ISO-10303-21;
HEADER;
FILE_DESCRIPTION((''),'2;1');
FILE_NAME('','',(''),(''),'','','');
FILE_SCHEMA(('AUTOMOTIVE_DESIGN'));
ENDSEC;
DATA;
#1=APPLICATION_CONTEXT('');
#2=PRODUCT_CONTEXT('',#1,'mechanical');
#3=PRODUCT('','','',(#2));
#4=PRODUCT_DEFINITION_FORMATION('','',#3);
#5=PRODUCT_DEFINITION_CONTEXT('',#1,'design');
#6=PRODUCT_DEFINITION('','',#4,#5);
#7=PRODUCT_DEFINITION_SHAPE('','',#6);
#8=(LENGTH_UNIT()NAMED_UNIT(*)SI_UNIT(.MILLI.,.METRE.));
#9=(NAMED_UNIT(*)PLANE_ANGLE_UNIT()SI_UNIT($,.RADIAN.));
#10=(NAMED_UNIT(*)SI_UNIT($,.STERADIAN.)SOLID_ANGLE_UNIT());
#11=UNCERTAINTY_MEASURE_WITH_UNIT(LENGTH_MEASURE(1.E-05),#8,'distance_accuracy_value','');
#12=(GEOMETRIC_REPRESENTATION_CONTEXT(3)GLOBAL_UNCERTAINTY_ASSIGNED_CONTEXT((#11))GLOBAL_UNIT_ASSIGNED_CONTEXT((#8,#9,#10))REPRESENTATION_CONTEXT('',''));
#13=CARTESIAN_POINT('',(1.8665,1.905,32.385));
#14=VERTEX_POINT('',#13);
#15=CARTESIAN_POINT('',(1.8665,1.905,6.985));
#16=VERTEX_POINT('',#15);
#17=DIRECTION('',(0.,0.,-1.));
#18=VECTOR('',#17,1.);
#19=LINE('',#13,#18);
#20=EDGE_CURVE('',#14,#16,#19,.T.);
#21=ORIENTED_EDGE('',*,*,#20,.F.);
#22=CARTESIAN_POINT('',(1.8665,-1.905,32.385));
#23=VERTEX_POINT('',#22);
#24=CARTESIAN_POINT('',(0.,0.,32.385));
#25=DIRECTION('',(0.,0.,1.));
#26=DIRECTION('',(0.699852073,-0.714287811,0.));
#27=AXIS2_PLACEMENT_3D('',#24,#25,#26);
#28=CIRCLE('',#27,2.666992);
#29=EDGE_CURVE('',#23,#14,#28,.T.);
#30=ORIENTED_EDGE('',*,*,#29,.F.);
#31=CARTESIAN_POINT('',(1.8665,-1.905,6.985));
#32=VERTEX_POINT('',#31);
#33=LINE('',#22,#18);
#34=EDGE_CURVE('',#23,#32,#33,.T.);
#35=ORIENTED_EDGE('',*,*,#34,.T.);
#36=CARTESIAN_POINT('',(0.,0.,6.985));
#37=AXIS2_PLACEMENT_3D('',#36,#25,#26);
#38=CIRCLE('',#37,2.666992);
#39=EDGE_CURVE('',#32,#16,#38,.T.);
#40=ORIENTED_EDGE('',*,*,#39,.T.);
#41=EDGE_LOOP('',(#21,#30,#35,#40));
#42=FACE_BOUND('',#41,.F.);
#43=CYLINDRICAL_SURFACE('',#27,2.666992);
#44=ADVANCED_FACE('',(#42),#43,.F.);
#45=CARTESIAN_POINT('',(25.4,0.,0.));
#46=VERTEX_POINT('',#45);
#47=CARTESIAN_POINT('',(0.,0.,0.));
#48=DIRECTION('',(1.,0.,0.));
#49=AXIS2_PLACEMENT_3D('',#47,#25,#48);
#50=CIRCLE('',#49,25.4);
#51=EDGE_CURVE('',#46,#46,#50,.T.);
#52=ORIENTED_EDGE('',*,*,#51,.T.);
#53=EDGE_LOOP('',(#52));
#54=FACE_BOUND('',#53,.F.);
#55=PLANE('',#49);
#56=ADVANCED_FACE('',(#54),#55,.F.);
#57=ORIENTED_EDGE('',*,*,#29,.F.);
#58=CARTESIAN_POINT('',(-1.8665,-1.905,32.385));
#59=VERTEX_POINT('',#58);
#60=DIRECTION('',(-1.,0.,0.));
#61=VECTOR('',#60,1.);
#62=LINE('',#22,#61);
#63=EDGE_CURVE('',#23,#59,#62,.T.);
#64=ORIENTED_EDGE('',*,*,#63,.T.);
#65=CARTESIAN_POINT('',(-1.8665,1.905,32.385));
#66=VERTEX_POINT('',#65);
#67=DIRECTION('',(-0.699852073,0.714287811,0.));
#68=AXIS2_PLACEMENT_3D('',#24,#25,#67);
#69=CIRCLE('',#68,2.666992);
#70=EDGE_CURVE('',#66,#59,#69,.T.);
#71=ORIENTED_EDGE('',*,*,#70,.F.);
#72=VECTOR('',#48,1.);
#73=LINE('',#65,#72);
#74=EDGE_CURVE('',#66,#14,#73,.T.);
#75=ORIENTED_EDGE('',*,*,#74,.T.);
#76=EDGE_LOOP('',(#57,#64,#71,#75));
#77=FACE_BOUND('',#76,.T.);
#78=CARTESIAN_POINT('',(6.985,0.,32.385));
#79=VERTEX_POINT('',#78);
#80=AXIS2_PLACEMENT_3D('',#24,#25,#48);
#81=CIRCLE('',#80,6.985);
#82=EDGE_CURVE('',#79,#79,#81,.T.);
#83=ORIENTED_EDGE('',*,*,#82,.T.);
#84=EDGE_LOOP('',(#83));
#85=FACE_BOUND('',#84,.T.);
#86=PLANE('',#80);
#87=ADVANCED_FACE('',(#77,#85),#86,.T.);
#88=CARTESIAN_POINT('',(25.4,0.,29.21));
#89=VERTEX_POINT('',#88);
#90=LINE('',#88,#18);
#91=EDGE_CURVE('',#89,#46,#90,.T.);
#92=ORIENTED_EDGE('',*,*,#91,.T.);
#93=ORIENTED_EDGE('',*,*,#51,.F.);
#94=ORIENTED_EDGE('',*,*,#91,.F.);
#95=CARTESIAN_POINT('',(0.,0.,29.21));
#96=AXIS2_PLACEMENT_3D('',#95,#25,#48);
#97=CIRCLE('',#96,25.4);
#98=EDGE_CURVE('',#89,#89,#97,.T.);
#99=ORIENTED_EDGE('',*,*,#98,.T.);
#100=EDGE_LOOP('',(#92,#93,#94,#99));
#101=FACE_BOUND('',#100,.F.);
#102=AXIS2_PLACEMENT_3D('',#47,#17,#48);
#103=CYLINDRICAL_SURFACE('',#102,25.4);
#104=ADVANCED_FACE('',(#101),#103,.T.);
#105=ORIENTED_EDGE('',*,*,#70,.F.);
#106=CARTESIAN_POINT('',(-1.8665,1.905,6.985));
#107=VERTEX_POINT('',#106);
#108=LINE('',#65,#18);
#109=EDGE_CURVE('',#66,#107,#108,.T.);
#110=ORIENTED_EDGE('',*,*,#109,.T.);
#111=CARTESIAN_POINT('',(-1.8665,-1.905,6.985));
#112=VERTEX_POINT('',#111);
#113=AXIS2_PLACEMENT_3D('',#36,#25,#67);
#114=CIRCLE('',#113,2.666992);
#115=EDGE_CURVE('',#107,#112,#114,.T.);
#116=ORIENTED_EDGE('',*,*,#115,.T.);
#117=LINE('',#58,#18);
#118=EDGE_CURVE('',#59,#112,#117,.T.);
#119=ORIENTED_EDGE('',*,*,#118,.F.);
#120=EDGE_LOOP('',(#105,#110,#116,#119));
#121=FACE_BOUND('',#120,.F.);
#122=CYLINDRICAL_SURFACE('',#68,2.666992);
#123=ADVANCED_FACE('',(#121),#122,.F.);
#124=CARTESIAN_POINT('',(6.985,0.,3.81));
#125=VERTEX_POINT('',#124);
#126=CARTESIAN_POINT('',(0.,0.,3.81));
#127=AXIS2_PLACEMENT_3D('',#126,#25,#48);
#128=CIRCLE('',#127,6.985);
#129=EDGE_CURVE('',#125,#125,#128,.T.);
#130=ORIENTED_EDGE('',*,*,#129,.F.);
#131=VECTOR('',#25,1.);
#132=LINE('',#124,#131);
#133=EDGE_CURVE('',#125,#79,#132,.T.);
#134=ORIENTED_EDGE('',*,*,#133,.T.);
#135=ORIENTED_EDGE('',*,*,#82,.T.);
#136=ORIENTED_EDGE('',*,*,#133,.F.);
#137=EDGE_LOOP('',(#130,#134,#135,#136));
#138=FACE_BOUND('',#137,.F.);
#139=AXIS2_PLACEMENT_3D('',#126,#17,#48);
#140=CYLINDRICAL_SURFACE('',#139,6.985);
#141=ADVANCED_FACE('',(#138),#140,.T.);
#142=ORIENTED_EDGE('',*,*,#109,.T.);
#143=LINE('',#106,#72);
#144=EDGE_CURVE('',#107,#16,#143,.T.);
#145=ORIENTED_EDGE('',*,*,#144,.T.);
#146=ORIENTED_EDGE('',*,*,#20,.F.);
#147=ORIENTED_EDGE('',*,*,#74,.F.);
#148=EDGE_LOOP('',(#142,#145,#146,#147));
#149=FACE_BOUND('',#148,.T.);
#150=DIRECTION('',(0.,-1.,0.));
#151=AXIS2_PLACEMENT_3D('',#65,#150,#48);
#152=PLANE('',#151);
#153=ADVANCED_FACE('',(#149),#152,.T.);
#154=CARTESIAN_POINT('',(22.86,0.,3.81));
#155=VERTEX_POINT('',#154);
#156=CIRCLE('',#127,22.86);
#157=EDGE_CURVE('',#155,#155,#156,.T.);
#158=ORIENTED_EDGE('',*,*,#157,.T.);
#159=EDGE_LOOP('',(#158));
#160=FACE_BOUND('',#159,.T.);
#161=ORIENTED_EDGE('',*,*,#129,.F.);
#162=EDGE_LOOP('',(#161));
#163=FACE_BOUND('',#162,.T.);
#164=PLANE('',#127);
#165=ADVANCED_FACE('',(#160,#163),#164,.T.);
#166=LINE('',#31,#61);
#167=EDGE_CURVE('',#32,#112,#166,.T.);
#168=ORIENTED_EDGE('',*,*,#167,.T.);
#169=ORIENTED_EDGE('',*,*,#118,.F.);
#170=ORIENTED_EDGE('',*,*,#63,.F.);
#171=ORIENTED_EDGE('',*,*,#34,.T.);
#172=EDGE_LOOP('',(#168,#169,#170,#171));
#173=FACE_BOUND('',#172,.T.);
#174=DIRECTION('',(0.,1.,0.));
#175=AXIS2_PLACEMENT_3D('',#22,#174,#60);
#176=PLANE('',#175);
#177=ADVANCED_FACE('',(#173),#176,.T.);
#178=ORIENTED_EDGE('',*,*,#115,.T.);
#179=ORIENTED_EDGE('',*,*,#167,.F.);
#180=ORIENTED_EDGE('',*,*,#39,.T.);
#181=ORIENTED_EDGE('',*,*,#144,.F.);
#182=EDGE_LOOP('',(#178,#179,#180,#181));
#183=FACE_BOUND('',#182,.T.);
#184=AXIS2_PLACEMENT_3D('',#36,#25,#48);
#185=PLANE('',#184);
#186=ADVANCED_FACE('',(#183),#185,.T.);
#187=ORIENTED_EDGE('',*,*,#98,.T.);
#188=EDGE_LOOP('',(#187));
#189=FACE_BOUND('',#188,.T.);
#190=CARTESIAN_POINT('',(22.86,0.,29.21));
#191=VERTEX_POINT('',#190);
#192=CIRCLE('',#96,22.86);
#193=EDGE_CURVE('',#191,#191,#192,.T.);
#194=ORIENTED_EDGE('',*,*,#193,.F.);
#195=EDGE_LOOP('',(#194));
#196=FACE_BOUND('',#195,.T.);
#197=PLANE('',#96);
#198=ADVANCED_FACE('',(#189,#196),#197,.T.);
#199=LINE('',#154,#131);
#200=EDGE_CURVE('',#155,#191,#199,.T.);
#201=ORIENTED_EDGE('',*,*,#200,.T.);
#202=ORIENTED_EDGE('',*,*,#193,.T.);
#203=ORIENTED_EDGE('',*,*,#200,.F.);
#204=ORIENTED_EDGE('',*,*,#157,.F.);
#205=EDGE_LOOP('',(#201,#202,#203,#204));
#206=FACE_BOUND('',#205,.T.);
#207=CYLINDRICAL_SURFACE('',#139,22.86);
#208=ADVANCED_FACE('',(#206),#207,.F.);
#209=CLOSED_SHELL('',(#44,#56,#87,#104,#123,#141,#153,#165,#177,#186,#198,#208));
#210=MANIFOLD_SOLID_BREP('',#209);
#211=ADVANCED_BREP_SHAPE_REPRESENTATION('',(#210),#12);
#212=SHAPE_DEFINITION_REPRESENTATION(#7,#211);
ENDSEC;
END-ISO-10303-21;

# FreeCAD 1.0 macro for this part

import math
import FreeCAD as App
import Part
import Sketcher
from FreeCAD import Vector
Q = App.Units.Quantity

doc = App.newDocument("Part")
params = doc.addObject("Spreadsheet::Sheet", "Params")
for row, (alias, value) in enumerate([
    ("sketch1_diameter", "2 in"),
    ("pad1_length", "0.15 in"),
    ("sketch2_diameter", "1.8 in"),
    ("sketch2_diameter2", "2 in"),
    ("pad2_length", "1 in"),
    ("sketch3_diameter", "0.55 in"),
    ("pad3_length", "1.125 in"),
    ("sketch4_radius", "0.105 in"),
    ("pocket1_length", "1 in"),
], start=1):
    params.set(f"A{row}", alias)
    params.set(f"B{row}", "=" + value)
    params.setAlias(f"B{row}", alias)

body = doc.addObject("PartDesign::Body", "Body")

sketch1 = doc.addObject("Sketcher::SketchObject", "Sketch")
body.addObject(sketch1)
sketch1.AttachmentSupport = (doc.XY_Plane, [""])
sketch1.MapMode = "FlatFace"
sketch1.addGeometry(Part.Circle(Vector(0, 0, 0), Vector(0, 0, 1), 25.4), False)
sketch1.addConstraint([
    Sketcher.Constraint("Coincident", 0, 3, -1, 1),
    Sketcher.Constraint("Diameter", 0, Q("2 in")),
])
sketch1.setExpression("Constraints[1]", "Params.sketch1_diameter")
pad1 = doc.addObject("PartDesign::Pad", "Pad")
body.addObject(pad1)
pad1.Profile = sketch1
pad1.setExpression("Length", "Params.pad1_length")

sketch2 = doc.addObject("Sketcher::SketchObject", "Sketch001")
body.addObject(sketch2)
sketch2.AttachmentSupport = (doc.XY_Plane, [""])
sketch2.MapMode = "FlatFace"
sketch2.AttachmentOffset = App.Placement(Vector(0, 0, 0.15 * 25.4), App.Rotation())
sketch2.addGeometry([
    Part.Circle(Vector(0, 0, 0), Vector(0, 0, 1), 25.4),
    Part.Circle(Vector(0, 0, 0), Vector(0, 0, 1), 22.86),
], False)
sketch2.addConstraint([
    Sketcher.Constraint("Coincident", 0, 3, -1, 1),
    Sketcher.Constraint("Coincident", 1, 3, -1, 1),
    Sketcher.Constraint("Diameter", 1, Q("1.8 in")),
    Sketcher.Constraint("Diameter", 0, Q("2 in")),
])
sketch2.setExpression("Constraints[2]", "Params.sketch2_diameter")
sketch2.setExpression("Constraints[3]", "Params.sketch2_diameter2")
pad2 = doc.addObject("PartDesign::Pad", "Pad001")
body.addObject(pad2)
pad2.Profile = sketch2
pad2.setExpression("Length", "Params.pad2_length")

sketch3 = doc.addObject("Sketcher::SketchObject", "Sketch002")
body.addObject(sketch3)
sketch3.AttachmentSupport = (doc.XY_Plane, [""])
sketch3.MapMode = "FlatFace"
sketch3.AttachmentOffset = App.Placement(Vector(0, 0, 0.15 * 25.4), App.Rotation())
sketch3.addGeometry(Part.Circle(Vector(0, 0, 0), Vector(0, 0, 1), 6.985), False)
sketch3.addConstraint([
    Sketcher.Constraint("Coincident", 0, 3, -1, 1),
    Sketcher.Constraint("Diameter", 0, Q("0.55 in")),
])
sketch3.setExpression("Constraints[1]", "Params.sketch3_diameter")
pad3 = doc.addObject("PartDesign::Pad", "Pad002")
body.addObject(pad3)
pad3.Profile = sketch3
pad3.setExpression("Length", "Params.pad3_length")

sketch4 = doc.addObject("Sketcher::SketchObject", "Sketch003")
body.addObject(sketch4)
sketch4.AttachmentSupport = (doc.XY_Plane, [""])
sketch4.MapMode = "FlatFace"
sketch4.AttachmentOffset = App.Placement(Vector(0, 0, 1.275 * 25.4), App.Rotation())
sketch4.addGeometry([
    Part.LineSegment(Vector(1.8665, 1.905, 0), Vector(-1.8665, 1.905, 0)),
    Part.ArcOfCircle(Part.Circle(Vector(0, 0, 0), Vector(0, 0, 1), 2.666992), math.radians(134.415137), math.radians(225.584863)),
    Part.LineSegment(Vector(-1.8665, -1.905, 0), Vector(1.8665, -1.905, 0)),
    Part.ArcOfCircle(Part.Circle(Vector(0, 0, 0), Vector(0, 0, 1), 2.666992), math.radians(-45.584863), math.radians(45.584863)),
], False)
sketch4.addConstraint([
    Sketcher.Constraint("Coincident", 0, 2, 1, 1),
    Sketcher.Constraint("Coincident", 1, 2, 2, 1),
    Sketcher.Constraint("Coincident", 2, 2, 3, 1),
    Sketcher.Constraint("Coincident", 3, 2, 0, 1),
    Sketcher.Constraint("Horizontal", 0),
    Sketcher.Constraint("Horizontal", 2),
    Sketcher.Constraint("Coincident", 1, 3, -1, 1),
    Sketcher.Constraint("Coincident", 3, 3, -1, 1),
    Sketcher.Constraint("Equal", 1, 3),
    Sketcher.Constraint("Vertical", 0, 2, 1, 2),
    Sketcher.Constraint("DistanceY", -1, 1, 0, 2, Q("0.075 in")),
    Sketcher.Constraint("Radius", 1, Q("0.105 in")),
])
sketch4.setExpression("Constraints[11]", "Params.sketch4_radius")
pocket1 = doc.addObject("PartDesign::Pocket", "Pocket")
body.addObject(pocket1)
pocket1.Profile = sketch4
pocket1.setExpression("Length", "Params.pocket1_length")

doc.recompute()
